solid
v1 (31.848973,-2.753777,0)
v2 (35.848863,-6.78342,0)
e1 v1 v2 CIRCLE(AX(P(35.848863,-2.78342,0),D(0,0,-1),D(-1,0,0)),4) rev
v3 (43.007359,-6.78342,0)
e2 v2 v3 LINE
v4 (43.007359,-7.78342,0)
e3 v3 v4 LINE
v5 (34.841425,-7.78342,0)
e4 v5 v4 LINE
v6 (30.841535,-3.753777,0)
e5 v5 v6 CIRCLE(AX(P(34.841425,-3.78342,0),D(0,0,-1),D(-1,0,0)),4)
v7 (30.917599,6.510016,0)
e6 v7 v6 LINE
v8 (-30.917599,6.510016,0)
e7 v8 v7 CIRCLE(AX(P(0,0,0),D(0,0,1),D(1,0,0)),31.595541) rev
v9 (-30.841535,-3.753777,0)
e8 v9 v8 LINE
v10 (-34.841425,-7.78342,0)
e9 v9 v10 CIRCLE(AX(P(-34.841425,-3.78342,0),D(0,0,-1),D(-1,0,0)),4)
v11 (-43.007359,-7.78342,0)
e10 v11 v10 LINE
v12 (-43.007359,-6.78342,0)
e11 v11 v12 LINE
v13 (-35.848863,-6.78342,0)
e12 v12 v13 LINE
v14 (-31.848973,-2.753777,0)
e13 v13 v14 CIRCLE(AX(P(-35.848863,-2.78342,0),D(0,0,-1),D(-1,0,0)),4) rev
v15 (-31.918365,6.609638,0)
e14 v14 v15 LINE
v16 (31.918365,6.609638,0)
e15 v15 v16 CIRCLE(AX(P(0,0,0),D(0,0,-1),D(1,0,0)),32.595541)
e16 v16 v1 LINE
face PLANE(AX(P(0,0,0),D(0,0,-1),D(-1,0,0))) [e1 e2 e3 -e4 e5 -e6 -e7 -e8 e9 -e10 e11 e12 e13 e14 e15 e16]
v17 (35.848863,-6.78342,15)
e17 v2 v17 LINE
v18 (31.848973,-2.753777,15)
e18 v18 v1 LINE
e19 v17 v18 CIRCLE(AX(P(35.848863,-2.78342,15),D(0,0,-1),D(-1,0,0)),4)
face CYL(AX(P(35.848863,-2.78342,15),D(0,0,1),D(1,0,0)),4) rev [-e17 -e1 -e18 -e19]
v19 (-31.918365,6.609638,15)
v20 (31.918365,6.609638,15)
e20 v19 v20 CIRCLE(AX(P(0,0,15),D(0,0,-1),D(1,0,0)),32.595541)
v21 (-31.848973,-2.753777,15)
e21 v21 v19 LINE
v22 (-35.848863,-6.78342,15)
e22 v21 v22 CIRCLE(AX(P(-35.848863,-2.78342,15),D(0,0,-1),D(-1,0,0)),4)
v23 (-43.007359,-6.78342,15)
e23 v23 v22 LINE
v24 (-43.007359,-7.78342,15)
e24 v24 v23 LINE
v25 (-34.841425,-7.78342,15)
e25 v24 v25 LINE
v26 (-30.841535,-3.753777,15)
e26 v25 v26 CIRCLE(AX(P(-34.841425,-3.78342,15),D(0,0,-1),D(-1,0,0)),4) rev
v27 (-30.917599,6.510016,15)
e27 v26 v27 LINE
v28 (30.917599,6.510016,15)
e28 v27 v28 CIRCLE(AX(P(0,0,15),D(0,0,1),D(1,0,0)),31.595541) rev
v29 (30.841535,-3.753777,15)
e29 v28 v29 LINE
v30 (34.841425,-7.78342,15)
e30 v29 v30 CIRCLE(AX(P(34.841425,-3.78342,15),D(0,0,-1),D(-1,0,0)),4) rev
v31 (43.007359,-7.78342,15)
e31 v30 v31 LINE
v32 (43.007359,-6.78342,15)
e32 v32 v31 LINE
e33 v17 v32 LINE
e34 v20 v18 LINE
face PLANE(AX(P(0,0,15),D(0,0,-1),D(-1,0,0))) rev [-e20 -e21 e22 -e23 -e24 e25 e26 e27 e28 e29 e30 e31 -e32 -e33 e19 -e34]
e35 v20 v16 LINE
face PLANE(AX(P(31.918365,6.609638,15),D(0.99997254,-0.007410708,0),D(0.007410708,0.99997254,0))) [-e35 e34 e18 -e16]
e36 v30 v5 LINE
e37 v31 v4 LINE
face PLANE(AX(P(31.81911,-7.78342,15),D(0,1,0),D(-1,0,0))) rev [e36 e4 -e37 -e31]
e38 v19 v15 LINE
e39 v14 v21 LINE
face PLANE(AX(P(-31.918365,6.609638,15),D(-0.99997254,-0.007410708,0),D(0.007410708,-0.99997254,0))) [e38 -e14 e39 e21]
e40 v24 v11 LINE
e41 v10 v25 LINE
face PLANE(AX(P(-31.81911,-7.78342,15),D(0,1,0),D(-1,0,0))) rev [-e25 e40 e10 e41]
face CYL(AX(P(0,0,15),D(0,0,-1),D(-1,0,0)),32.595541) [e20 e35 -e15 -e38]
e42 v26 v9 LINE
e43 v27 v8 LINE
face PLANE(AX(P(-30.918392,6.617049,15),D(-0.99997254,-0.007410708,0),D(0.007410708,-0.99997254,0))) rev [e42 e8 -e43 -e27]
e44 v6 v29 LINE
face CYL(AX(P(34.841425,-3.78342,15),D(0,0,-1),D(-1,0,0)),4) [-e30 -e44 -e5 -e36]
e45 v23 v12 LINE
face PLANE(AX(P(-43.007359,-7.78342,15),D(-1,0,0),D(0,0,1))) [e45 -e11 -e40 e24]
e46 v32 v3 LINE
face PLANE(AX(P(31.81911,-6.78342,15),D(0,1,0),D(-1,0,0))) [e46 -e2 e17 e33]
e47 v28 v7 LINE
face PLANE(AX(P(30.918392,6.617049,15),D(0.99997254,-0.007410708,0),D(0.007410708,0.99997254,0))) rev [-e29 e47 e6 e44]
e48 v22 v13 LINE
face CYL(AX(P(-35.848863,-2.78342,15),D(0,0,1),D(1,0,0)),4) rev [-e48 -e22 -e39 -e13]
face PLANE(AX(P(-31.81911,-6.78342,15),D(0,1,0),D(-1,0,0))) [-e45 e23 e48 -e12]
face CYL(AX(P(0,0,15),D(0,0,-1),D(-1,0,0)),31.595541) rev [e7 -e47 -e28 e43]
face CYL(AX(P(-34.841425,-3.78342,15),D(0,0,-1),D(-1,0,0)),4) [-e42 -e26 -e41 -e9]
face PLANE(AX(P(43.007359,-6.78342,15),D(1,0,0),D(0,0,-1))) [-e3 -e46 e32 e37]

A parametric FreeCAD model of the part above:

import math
import FreeCAD as App
import Part
import Sketcher


def edges_at(feature, points):
    """Names of the edges that pass closest to the given points."""
    edges = feature.Shape.Edges
    near = lambda p: min(range(len(edges)), key=lambda i: edges[i].distToShape(Part.Vertex(*p))[0])
    return sorted({f"Edge{near(p) + 1}" for p in points})

doc = App.newDocument("Part")
body = doc.addObject("PartDesign::Body", "Body")

# Sketch on XY plane
sketch1 = body.newObject("Sketcher::SketchObject", "Sketch")
sketch1.AttachmentSupport = (doc.getObject("XY_Plane"), [""])
sketch1.MapMode = "FlatFace"
sketch1.addGeometry([
    Part.LineSegment(App.Vector(43, -6.8, 0), App.Vector(31.8, -6.8, 0)),  # 0
    Part.LineSegment(App.Vector(31.8, -6.8, 0), App.Vector(31.9, 6.6, 0)),  # 1
    Part.ArcOfCircle(Part.Circle(App.Vector(0, 0, 0), App.Vector(0, 0, 1), 32.6), math.radians(12), math.radians(168)),  # 2
    Part.LineSegment(App.Vector(-31.9, 6.6, 0), App.Vector(-31.8, -6.8, 0)),  # 3
    Part.LineSegment(App.Vector(-31.8, -6.8, 0), App.Vector(-43, -6.8, 0)),  # 4
    Part.LineSegment(App.Vector(-43, -6.8, 0), App.Vector(-43, -7.8, 0)),  # 5
    Part.LineSegment(App.Vector(-43, -7.8, 0), App.Vector(-30.8, -7.8, 0)),  # 6
    Part.LineSegment(App.Vector(-30.8, -7.8, 0), App.Vector(-30.9, 6.5, 0)),  # 7
    Part.ArcOfCircle(Part.Circle(App.Vector(0, 0, 0), App.Vector(0, 0, 1), 31.6), math.radians(12), math.radians(168)),  # 8
    Part.LineSegment(App.Vector(30.9, 6.5, 0), App.Vector(30.8, -7.8, 0)),  # 9
    Part.LineSegment(App.Vector(30.8, -7.8, 0), App.Vector(43, -7.8, 0)),  # 10
    Part.LineSegment(App.Vector(43, -7.8, 0), App.Vector(43, -6.8, 0)),  # 11
], False)
sketch1.addConstraint([
    Sketcher.Constraint("Coincident", 0, 2, 1, 1),
    Sketcher.Constraint("Coincident", 1, 2, 2, 1),
    Sketcher.Constraint("Coincident", 2, 2, 3, 1),
    Sketcher.Constraint("Coincident", 3, 2, 4, 1),
    Sketcher.Constraint("Coincident", 4, 2, 5, 1),
    Sketcher.Constraint("Coincident", 5, 2, 6, 1),
    Sketcher.Constraint("Coincident", 6, 2, 7, 1),
    Sketcher.Constraint("Coincident", 7, 2, 8, 2),
    Sketcher.Constraint("Coincident", 8, 1, 9, 1),
    Sketcher.Constraint("Coincident", 9, 2, 10, 1),
    Sketcher.Constraint("Coincident", 10, 2, 11, 1),
    Sketcher.Constraint("Coincident", 11, 2, 0, 1),
    Sketcher.Constraint("Horizontal", 0),
    Sketcher.Constraint("Horizontal", 4),
    Sketcher.Constraint("Vertical", 5),
    Sketcher.Constraint("Horizontal", 6),
    Sketcher.Constraint("Horizontal", 10),
    Sketcher.Constraint("Vertical", 11),
    Sketcher.Constraint("Coincident", 2, 3, -1, 1),
    Sketcher.Constraint("Coincident", 8, 3, -1, 1),
    Sketcher.Constraint("Symmetric", 0, 2, 3, 2, -2),
    Sketcher.Constraint("Symmetric", 6, 2, 9, 2, -2),
    Sketcher.Constraint("Parallel", 3, 7),
    Sketcher.Constraint("Parallel", 1, 9),
    Sketcher.Constraint("Horizontal", 1, 2, 2, 2),
    Sketcher.Constraint("Equal", 0, 4),
    Sketcher.Constraint("DistanceY", 5, 2, 5, 1, 1.0),
    Sketcher.Constraint("Radius", 2, 32.595541),
    Sketcher.Constraint("Radius", 8, 31.595541),
    Sketcher.Constraint("DistanceX", 0, 2, 0, 1, 11.188249),
    Sketcher.Constraint("DistanceX", 7, 2, -1, 1, 30.917599),
    Sketcher.Constraint("Distance", 7, 14.293829),
    Sketcher.Constraint("DistanceX", 6, 1, 6, 2, 12.195688),
    Sketcher.Constraint("DistanceX", -1, 1, 0, 2, 31.81911),
])
pad1 = body.newObject("PartDesign::Pad", "Pad")
pad1.Profile = sketch1
pad1.Length = 15
doc.recompute()

fillet = body.newObject("PartDesign::Fillet", "Fillet")
fillet.Base = (pad1, edges_at(pad1, [(-31.819, -6.783, 7.5)]))
fillet.Radius = 4
doc.recompute()

fillet2 = body.newObject("PartDesign::Fillet", "Fillet001")
fillet2.Base = (fillet, edges_at(fillet, [(-30.812, -7.783, 7.5)]))
fillet2.Radius = 4
doc.recompute()

fillet3 = body.newObject("PartDesign::Fillet", "Fillet002")
fillet3.Base = (fillet2, edges_at(fillet2, [(30.812, -7.783, 7.5), (31.819, -6.783, 7.5)]))
fillet3.Radius = 4

doc.recompute()
